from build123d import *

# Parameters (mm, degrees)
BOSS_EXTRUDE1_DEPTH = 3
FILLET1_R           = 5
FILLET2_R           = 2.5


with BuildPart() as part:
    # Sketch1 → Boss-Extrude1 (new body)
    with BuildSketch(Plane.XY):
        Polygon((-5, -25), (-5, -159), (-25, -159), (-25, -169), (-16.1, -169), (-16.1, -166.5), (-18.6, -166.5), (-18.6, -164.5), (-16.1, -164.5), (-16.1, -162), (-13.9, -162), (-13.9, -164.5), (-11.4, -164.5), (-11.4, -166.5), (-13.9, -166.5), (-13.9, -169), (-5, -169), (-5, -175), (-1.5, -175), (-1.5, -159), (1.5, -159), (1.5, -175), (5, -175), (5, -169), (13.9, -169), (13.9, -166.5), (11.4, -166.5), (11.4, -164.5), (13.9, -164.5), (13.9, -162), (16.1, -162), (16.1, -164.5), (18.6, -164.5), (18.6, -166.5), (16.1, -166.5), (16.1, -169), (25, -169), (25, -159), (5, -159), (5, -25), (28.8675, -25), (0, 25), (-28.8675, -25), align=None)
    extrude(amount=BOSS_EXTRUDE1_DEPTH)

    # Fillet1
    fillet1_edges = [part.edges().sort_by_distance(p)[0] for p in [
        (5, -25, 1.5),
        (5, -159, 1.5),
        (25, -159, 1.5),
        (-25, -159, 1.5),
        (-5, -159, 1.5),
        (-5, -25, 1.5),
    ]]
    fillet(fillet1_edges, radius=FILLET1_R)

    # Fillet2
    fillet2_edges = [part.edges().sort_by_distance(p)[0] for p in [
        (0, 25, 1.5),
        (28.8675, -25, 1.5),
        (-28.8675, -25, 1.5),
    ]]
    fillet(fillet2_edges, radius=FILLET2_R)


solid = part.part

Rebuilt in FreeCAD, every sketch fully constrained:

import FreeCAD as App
import Part
import Sketcher
Q = App.Units.Quantity


def edges_at(feature, points):
    """Names of the edges that pass closest to the given points."""
    edges = feature.Shape.Edges
    near = lambda p: min(range(len(edges)), key=lambda i: edges[i].distToShape(Part.Vertex(*p))[0])
    return sorted({f"Edge{near(p) + 1}" for p in points})

doc = App.newDocument("Part")
body = doc.addObject("PartDesign::Body", "Body")

# Sketch on XY plane
sketch1 = doc.addObject("Sketcher::SketchObject", "Sketch")
body.addObject(sketch1)
sketch1.AttachmentSupport = (doc.XY_Plane, [""])
sketch1.MapMode = "FlatFace"
sketch1.addGeometry([
    Part.LineSegment(App.Vector(-5, -25, 0), App.Vector(-5, -159, 0)),  # 0
    Part.LineSegment(App.Vector(-5, -159, 0), App.Vector(-25, -159, 0)),  # 1
    Part.LineSegment(App.Vector(-25, -159, 0), App.Vector(-25, -169, 0)),  # 2
    Part.LineSegment(App.Vector(-25, -169, 0), App.Vector(-16.1, -169, 0)),  # 3
    Part.LineSegment(App.Vector(-16.1, -169, 0), App.Vector(-16.1, -166.5, 0)),  # 4
    Part.LineSegment(App.Vector(-16.1, -166.5, 0), App.Vector(-18.6, -166.5, 0)),  # 5
    Part.LineSegment(App.Vector(-18.6, -166.5, 0), App.Vector(-18.6, -164.5, 0)),  # 6
    Part.LineSegment(App.Vector(-18.6, -164.5, 0), App.Vector(-16.1, -164.5, 0)),  # 7
    Part.LineSegment(App.Vector(-16.1, -164.5, 0), App.Vector(-16.1, -162, 0)),  # 8
    Part.LineSegment(App.Vector(-16.1, -162, 0), App.Vector(-13.9, -162, 0)),  # 9
    Part.LineSegment(App.Vector(-13.9, -162, 0), App.Vector(-13.9, -164.5, 0)),  # 10
    Part.LineSegment(App.Vector(-13.9, -164.5, 0), App.Vector(-11.4, -164.5, 0)),  # 11
    Part.LineSegment(App.Vector(-11.4, -164.5, 0), App.Vector(-11.4, -166.5, 0)),  # 12
    Part.LineSegment(App.Vector(-11.4, -166.5, 0), App.Vector(-13.9, -166.5, 0)),  # 13
    Part.LineSegment(App.Vector(-13.9, -166.5, 0), App.Vector(-13.9, -169, 0)),  # 14
    Part.LineSegment(App.Vector(-13.9, -169, 0), App.Vector(-5, -169, 0)),  # 15
    Part.LineSegment(App.Vector(-5, -169, 0), App.Vector(-5, -175, 0)),  # 16
    Part.LineSegment(App.Vector(-5, -175, 0), App.Vector(-1.5, -175, 0)),  # 17
    Part.LineSegment(App.Vector(-1.5, -175, 0), App.Vector(-1.5, -159, 0)),  # 18
    Part.LineSegment(App.Vector(-1.5, -159, 0), App.Vector(1.5, -159, 0)),  # 19
    Part.LineSegment(App.Vector(1.5, -159, 0), App.Vector(1.5, -175, 0)),  # 20
    Part.LineSegment(App.Vector(1.5, -175, 0), App.Vector(5, -175, 0)),  # 21
    Part.LineSegment(App.Vector(5, -175, 0), App.Vector(5, -169, 0)),  # 22
    Part.LineSegment(App.Vector(5, -169, 0), App.Vector(13.9, -169, 0)),  # 23
    Part.LineSegment(App.Vector(13.9, -169, 0), App.Vector(13.9, -166.5, 0)),  # 24
    Part.LineSegment(App.Vector(13.9, -166.5, 0), App.Vector(11.4, -166.5, 0)),  # 25
    Part.LineSegment(App.Vector(11.4, -166.5, 0), App.Vector(11.4, -164.5, 0)),  # 26
    Part.LineSegment(App.Vector(11.4, -164.5, 0), App.Vector(13.9, -164.5, 0)),  # 27
    Part.LineSegment(App.Vector(13.9, -164.5, 0), App.Vector(13.9, -162, 0)),  # 28
    Part.LineSegment(App.Vector(13.9, -162, 0), App.Vector(16.1, -162, 0)),  # 29
    Part.LineSegment(App.Vector(16.1, -162, 0), App.Vector(16.1, -164.5, 0)),  # 30
    Part.LineSegment(App.Vector(16.1, -164.5, 0), App.Vector(18.6, -164.5, 0)),  # 31
    Part.LineSegment(App.Vector(18.6, -164.5, 0), App.Vector(18.6, -166.5, 0)),  # 32
    Part.LineSegment(App.Vector(18.6, -166.5, 0), App.Vector(16.1, -166.5, 0)),  # 33
    Part.LineSegment(App.Vector(16.1, -166.5, 0), App.Vector(16.1, -169, 0)),  # 34
    Part.LineSegment(App.Vector(16.1, -169, 0), App.Vector(25, -169, 0)),  # 35
    Part.LineSegment(App.Vector(25, -169, 0), App.Vector(25, -159, 0)),  # 36
    Part.LineSegment(App.Vector(25, -159, 0), App.Vector(5, -159, 0)),  # 37
    Part.LineSegment(App.Vector(5, -159, 0), App.Vector(5, -25, 0)),  # 38
    Part.LineSegment(App.Vector(5, -25, 0), App.Vector(28.9, -25, 0)),  # 39
    Part.LineSegment(App.Vector(28.9, -25, 0), App.Vector(0, 25, 0)),  # 40
    Part.LineSegment(App.Vector(0, 25, 0), App.Vector(-28.9, -25, 0)),  # 41
    Part.LineSegment(App.Vector(-28.9, -25, 0), App.Vector(-5, -25, 0)),  # 42
], False)
sketch1.addConstraint([
    Sketcher.Constraint("Coincident", 0, 2, 1, 1),
    Sketcher.Constraint("Coincident", 1, 2, 2, 1),
    Sketcher.Constraint("Coincident", 2, 2, 3, 1),
    Sketcher.Constraint("Coincident", 3, 2, 4, 1),
    Sketcher.Constraint("Coincident", 4, 2, 5, 1),
    Sketcher.Constraint("Coincident", 5, 2, 6, 1),
    Sketcher.Constraint("Coincident", 6, 2, 7, 1),
    Sketcher.Constraint("Coincident", 7, 2, 8, 1),
    Sketcher.Constraint("Coincident", 8, 2, 9, 1),
    Sketcher.Constraint("Coincident", 9, 2, 10, 1),
    Sketcher.Constraint("Coincident", 10, 2, 11, 1),
    Sketcher.Constraint("Coincident", 11, 2, 12, 1),
    Sketcher.Constraint("Coincident", 12, 2, 13, 1),
    Sketcher.Constraint("Coincident", 13, 2, 14, 1),
    Sketcher.Constraint("Coincident", 14, 2, 15, 1),
    Sketcher.Constraint("Coincident", 15, 2, 16, 1),
    Sketcher.Constraint("Coincident", 16, 2, 17, 1),
    Sketcher.Constraint("Coincident", 17, 2, 18, 1),
    Sketcher.Constraint("Coincident", 18, 2, 19, 1),
    Sketcher.Constraint("Coincident", 19, 2, 20, 1),
    Sketcher.Constraint("Coincident", 20, 2, 21, 1),
    Sketcher.Constraint("Coincident", 21, 2, 22, 1),
    Sketcher.Constraint("Coincident", 22, 2, 23, 1),
    Sketcher.Constraint("Coincident", 23, 2, 24, 1),
    Sketcher.Constraint("Coincident", 24, 2, 25, 1),
    Sketcher.Constraint("Coincident", 25, 2, 26, 1),
    Sketcher.Constraint("Coincident", 26, 2, 27, 1),
    Sketcher.Constraint("Coincident", 27, 2, 28, 1),
    Sketcher.Constraint("Coincident", 28, 2, 29, 1),
    Sketcher.Constraint("Coincident", 29, 2, 30, 1),
    Sketcher.Constraint("Coincident", 30, 2, 31, 1),
    Sketcher.Constraint("Coincident", 31, 2, 32, 1),
    Sketcher.Constraint("Coincident", 32, 2, 33, 1),
    Sketcher.Constraint("Coincident", 33, 2, 34, 1),
    Sketcher.Constraint("Coincident", 34, 2, 35, 1),
    Sketcher.Constraint("Coincident", 35, 2, 36, 1),
    Sketcher.Constraint("Coincident", 36, 2, 37, 1),
    Sketcher.Constraint("Coincident", 37, 2, 38, 1),
    Sketcher.Constraint("Coincident", 38, 2, 39, 1),
    Sketcher.Constraint("Coincident", 39, 2, 40, 1),
    Sketcher.Constraint("Coincident", 40, 2, 41, 1),
    Sketcher.Constraint("Coincident", 41, 2, 42, 1),
    Sketcher.Constraint("Coincident", 42, 2, 0, 1),
    Sketcher.Constraint("Vertical", 0),
    Sketcher.Constraint("Horizontal", 1),
    Sketcher.Constraint("Vertical", 2),
    Sketcher.Constraint("Horizontal", 3),
    Sketcher.Constraint("Vertical", 4),
    Sketcher.Constraint("Horizontal", 5),
    Sketcher.Constraint("Vertical", 6),
    Sketcher.Constraint("Horizontal", 7),
    Sketcher.Constraint("Vertical", 8),
    Sketcher.Constraint("Horizontal", 9),
    Sketcher.Constraint("Vertical", 10),
    Sketcher.Constraint("Horizontal", 11),
    Sketcher.Constraint("Vertical", 12),
    Sketcher.Constraint("Horizontal", 13),
    Sketcher.Constraint("Vertical", 14),
    Sketcher.Constraint("Horizontal", 15),
    Sketcher.Constraint("Vertical", 16),
    Sketcher.Constraint("Horizontal", 17),
    Sketcher.Constraint("Vertical", 18),
    Sketcher.Constraint("Horizontal", 19),
    Sketcher.Constraint("Vertical", 20),
    Sketcher.Constraint("Horizontal", 21),
    Sketcher.Constraint("Vertical", 22),
    Sketcher.Constraint("Horizontal", 23),
    Sketcher.Constraint("Vertical", 24),
    Sketcher.Constraint("Horizontal", 25),
    Sketcher.Constraint("Vertical", 26),
    Sketcher.Constraint("Horizontal", 27),
    Sketcher.Constraint("Vertical", 28),
    Sketcher.Constraint("Horizontal", 29),
    Sketcher.Constraint("Vertical", 30),
    Sketcher.Constraint("Horizontal", 31),
    Sketcher.Constraint("Vertical", 32),
    Sketcher.Constraint("Horizontal", 33),
    Sketcher.Constraint("Vertical", 34),
    Sketcher.Constraint("Horizontal", 35),
    Sketcher.Constraint("Vertical", 36),
    Sketcher.Constraint("Horizontal", 37),
    Sketcher.Constraint("Vertical", 38),
    Sketcher.Constraint("Horizontal", 39),
    Sketcher.Constraint("Horizontal", 42),
    Sketcher.Constraint("Symmetric", 17, 2, 20, 2, -2),
    Sketcher.Constraint("Symmetric", 15, 2, 22, 2, -2),
    Sketcher.Constraint("Symmetric", 13, 2, 24, 2, -2),
    Sketcher.Constraint("Symmetric", 11, 2, 26, 2, -2),
    Sketcher.Constraint("Symmetric", 9, 2, 28, 2, -2),
    Sketcher.Constraint("Symmetric", 7, 2, 30, 2, -2),
    Sketcher.Constraint("Symmetric", 5, 2, 32, 2, -2),
    Sketcher.Constraint("Symmetric", 3, 2, 34, 2, -2),
    Sketcher.Constraint("Symmetric", 1, 2, 36, 2, -2),
    Sketcher.Constraint("Symmetric", 39, 2, 41, 2, -2),
    Sketcher.Constraint("PointOnObject", 40, 2, -2),
    Sketcher.Constraint("Horizontal", 7, 2, 10, 2),
    Sketcher.Constraint("Horizontal", 5, 2, 12, 2),
    Sketcher.Constraint("Horizontal", 3, 2, 14, 2),
    Sketcher.Constraint("Horizontal", 1, 2, 18, 2),
    Sketcher.Constraint("Vertical", 4, 2, 7, 2),
    Sketcher.Constraint("Vertical", 10, 2, 13, 2),
    Sketcher.Constraint("Vertical", 0, 2, 15, 2),
    Sketcher.Constraint("Vertical", 22, 2, 37, 2),
    Sketcher.Constraint("Equal", 7, 11),
    Sketcher.Constraint("Equal", 3, 15),
    Sketcher.Constraint("Equal", 33, 4),
    Sketcher.Constraint("Equal", 4, 8),
    Sketcher.Constraint("DistanceX", 1, 2, 1, 1, Q("20 mm")),
    Sketcher.Constraint("DistanceX", 19, 1, 19, 2, Q("3 mm")),
    Sketcher.Constraint("DistanceY", 0, 2, 0, 1, Q("134 mm")),
    Sketcher.Constraint("DistanceY", 2, 2, 2, 1, Q("10 mm")),
    Sketcher.Constraint("DistanceY", 6, 1, 6, 2, Q("2 mm")),
    Sketcher.Constraint("DistanceY", 16, 2, 16, 1, Q("6 mm")),
    Sketcher.Constraint("Angle", 40, Q("119.999988 deg")),
    Sketcher.Constraint("DistanceX", 3, 1, 3, 2, Q("8.9 mm")),
    Sketcher.Constraint("DistanceX", 5, 2, 5, 1, Q("2.5 mm")),
    Sketcher.Constraint("DistanceX", 17, 1, 17, 2, Q("3.5 mm")),
    Sketcher.Constraint("DistanceY", 0, 2, -1, 1, Q("159 mm")),
    Sketcher.Constraint("DistanceY", -1, 1, 40, 2, Q("25 mm")),
])
pad1 = doc.addObject("PartDesign::Pad", "Pad")
body.addObject(pad1)
pad1.Profile = sketch1
pad1.Length = 3
doc.recompute()

fillet = doc.addObject("PartDesign::Fillet", "Fillet")
body.addObject(fillet)
fillet.Base = (pad1, edges_at(pad1, [
    (5, -25, 1.5),
    (5, -159, 1.5),
    (25, -159, 1.5),
    (-25, -159, 1.5),
    (-5, -159, 1.5),
    (-5, -25, 1.5),
]))
fillet.Radius = 5
doc.recompute()

fillet2 = doc.addObject("PartDesign::Fillet", "Fillet001")
body.addObject(fillet2)
fillet2.Base = (fillet, edges_at(fillet, [(0, 25, 1.5), (28.867, -25, 1.5), (-28.867, -25, 1.5)]))
fillet2.Radius = 2.5

doc.recompute()
